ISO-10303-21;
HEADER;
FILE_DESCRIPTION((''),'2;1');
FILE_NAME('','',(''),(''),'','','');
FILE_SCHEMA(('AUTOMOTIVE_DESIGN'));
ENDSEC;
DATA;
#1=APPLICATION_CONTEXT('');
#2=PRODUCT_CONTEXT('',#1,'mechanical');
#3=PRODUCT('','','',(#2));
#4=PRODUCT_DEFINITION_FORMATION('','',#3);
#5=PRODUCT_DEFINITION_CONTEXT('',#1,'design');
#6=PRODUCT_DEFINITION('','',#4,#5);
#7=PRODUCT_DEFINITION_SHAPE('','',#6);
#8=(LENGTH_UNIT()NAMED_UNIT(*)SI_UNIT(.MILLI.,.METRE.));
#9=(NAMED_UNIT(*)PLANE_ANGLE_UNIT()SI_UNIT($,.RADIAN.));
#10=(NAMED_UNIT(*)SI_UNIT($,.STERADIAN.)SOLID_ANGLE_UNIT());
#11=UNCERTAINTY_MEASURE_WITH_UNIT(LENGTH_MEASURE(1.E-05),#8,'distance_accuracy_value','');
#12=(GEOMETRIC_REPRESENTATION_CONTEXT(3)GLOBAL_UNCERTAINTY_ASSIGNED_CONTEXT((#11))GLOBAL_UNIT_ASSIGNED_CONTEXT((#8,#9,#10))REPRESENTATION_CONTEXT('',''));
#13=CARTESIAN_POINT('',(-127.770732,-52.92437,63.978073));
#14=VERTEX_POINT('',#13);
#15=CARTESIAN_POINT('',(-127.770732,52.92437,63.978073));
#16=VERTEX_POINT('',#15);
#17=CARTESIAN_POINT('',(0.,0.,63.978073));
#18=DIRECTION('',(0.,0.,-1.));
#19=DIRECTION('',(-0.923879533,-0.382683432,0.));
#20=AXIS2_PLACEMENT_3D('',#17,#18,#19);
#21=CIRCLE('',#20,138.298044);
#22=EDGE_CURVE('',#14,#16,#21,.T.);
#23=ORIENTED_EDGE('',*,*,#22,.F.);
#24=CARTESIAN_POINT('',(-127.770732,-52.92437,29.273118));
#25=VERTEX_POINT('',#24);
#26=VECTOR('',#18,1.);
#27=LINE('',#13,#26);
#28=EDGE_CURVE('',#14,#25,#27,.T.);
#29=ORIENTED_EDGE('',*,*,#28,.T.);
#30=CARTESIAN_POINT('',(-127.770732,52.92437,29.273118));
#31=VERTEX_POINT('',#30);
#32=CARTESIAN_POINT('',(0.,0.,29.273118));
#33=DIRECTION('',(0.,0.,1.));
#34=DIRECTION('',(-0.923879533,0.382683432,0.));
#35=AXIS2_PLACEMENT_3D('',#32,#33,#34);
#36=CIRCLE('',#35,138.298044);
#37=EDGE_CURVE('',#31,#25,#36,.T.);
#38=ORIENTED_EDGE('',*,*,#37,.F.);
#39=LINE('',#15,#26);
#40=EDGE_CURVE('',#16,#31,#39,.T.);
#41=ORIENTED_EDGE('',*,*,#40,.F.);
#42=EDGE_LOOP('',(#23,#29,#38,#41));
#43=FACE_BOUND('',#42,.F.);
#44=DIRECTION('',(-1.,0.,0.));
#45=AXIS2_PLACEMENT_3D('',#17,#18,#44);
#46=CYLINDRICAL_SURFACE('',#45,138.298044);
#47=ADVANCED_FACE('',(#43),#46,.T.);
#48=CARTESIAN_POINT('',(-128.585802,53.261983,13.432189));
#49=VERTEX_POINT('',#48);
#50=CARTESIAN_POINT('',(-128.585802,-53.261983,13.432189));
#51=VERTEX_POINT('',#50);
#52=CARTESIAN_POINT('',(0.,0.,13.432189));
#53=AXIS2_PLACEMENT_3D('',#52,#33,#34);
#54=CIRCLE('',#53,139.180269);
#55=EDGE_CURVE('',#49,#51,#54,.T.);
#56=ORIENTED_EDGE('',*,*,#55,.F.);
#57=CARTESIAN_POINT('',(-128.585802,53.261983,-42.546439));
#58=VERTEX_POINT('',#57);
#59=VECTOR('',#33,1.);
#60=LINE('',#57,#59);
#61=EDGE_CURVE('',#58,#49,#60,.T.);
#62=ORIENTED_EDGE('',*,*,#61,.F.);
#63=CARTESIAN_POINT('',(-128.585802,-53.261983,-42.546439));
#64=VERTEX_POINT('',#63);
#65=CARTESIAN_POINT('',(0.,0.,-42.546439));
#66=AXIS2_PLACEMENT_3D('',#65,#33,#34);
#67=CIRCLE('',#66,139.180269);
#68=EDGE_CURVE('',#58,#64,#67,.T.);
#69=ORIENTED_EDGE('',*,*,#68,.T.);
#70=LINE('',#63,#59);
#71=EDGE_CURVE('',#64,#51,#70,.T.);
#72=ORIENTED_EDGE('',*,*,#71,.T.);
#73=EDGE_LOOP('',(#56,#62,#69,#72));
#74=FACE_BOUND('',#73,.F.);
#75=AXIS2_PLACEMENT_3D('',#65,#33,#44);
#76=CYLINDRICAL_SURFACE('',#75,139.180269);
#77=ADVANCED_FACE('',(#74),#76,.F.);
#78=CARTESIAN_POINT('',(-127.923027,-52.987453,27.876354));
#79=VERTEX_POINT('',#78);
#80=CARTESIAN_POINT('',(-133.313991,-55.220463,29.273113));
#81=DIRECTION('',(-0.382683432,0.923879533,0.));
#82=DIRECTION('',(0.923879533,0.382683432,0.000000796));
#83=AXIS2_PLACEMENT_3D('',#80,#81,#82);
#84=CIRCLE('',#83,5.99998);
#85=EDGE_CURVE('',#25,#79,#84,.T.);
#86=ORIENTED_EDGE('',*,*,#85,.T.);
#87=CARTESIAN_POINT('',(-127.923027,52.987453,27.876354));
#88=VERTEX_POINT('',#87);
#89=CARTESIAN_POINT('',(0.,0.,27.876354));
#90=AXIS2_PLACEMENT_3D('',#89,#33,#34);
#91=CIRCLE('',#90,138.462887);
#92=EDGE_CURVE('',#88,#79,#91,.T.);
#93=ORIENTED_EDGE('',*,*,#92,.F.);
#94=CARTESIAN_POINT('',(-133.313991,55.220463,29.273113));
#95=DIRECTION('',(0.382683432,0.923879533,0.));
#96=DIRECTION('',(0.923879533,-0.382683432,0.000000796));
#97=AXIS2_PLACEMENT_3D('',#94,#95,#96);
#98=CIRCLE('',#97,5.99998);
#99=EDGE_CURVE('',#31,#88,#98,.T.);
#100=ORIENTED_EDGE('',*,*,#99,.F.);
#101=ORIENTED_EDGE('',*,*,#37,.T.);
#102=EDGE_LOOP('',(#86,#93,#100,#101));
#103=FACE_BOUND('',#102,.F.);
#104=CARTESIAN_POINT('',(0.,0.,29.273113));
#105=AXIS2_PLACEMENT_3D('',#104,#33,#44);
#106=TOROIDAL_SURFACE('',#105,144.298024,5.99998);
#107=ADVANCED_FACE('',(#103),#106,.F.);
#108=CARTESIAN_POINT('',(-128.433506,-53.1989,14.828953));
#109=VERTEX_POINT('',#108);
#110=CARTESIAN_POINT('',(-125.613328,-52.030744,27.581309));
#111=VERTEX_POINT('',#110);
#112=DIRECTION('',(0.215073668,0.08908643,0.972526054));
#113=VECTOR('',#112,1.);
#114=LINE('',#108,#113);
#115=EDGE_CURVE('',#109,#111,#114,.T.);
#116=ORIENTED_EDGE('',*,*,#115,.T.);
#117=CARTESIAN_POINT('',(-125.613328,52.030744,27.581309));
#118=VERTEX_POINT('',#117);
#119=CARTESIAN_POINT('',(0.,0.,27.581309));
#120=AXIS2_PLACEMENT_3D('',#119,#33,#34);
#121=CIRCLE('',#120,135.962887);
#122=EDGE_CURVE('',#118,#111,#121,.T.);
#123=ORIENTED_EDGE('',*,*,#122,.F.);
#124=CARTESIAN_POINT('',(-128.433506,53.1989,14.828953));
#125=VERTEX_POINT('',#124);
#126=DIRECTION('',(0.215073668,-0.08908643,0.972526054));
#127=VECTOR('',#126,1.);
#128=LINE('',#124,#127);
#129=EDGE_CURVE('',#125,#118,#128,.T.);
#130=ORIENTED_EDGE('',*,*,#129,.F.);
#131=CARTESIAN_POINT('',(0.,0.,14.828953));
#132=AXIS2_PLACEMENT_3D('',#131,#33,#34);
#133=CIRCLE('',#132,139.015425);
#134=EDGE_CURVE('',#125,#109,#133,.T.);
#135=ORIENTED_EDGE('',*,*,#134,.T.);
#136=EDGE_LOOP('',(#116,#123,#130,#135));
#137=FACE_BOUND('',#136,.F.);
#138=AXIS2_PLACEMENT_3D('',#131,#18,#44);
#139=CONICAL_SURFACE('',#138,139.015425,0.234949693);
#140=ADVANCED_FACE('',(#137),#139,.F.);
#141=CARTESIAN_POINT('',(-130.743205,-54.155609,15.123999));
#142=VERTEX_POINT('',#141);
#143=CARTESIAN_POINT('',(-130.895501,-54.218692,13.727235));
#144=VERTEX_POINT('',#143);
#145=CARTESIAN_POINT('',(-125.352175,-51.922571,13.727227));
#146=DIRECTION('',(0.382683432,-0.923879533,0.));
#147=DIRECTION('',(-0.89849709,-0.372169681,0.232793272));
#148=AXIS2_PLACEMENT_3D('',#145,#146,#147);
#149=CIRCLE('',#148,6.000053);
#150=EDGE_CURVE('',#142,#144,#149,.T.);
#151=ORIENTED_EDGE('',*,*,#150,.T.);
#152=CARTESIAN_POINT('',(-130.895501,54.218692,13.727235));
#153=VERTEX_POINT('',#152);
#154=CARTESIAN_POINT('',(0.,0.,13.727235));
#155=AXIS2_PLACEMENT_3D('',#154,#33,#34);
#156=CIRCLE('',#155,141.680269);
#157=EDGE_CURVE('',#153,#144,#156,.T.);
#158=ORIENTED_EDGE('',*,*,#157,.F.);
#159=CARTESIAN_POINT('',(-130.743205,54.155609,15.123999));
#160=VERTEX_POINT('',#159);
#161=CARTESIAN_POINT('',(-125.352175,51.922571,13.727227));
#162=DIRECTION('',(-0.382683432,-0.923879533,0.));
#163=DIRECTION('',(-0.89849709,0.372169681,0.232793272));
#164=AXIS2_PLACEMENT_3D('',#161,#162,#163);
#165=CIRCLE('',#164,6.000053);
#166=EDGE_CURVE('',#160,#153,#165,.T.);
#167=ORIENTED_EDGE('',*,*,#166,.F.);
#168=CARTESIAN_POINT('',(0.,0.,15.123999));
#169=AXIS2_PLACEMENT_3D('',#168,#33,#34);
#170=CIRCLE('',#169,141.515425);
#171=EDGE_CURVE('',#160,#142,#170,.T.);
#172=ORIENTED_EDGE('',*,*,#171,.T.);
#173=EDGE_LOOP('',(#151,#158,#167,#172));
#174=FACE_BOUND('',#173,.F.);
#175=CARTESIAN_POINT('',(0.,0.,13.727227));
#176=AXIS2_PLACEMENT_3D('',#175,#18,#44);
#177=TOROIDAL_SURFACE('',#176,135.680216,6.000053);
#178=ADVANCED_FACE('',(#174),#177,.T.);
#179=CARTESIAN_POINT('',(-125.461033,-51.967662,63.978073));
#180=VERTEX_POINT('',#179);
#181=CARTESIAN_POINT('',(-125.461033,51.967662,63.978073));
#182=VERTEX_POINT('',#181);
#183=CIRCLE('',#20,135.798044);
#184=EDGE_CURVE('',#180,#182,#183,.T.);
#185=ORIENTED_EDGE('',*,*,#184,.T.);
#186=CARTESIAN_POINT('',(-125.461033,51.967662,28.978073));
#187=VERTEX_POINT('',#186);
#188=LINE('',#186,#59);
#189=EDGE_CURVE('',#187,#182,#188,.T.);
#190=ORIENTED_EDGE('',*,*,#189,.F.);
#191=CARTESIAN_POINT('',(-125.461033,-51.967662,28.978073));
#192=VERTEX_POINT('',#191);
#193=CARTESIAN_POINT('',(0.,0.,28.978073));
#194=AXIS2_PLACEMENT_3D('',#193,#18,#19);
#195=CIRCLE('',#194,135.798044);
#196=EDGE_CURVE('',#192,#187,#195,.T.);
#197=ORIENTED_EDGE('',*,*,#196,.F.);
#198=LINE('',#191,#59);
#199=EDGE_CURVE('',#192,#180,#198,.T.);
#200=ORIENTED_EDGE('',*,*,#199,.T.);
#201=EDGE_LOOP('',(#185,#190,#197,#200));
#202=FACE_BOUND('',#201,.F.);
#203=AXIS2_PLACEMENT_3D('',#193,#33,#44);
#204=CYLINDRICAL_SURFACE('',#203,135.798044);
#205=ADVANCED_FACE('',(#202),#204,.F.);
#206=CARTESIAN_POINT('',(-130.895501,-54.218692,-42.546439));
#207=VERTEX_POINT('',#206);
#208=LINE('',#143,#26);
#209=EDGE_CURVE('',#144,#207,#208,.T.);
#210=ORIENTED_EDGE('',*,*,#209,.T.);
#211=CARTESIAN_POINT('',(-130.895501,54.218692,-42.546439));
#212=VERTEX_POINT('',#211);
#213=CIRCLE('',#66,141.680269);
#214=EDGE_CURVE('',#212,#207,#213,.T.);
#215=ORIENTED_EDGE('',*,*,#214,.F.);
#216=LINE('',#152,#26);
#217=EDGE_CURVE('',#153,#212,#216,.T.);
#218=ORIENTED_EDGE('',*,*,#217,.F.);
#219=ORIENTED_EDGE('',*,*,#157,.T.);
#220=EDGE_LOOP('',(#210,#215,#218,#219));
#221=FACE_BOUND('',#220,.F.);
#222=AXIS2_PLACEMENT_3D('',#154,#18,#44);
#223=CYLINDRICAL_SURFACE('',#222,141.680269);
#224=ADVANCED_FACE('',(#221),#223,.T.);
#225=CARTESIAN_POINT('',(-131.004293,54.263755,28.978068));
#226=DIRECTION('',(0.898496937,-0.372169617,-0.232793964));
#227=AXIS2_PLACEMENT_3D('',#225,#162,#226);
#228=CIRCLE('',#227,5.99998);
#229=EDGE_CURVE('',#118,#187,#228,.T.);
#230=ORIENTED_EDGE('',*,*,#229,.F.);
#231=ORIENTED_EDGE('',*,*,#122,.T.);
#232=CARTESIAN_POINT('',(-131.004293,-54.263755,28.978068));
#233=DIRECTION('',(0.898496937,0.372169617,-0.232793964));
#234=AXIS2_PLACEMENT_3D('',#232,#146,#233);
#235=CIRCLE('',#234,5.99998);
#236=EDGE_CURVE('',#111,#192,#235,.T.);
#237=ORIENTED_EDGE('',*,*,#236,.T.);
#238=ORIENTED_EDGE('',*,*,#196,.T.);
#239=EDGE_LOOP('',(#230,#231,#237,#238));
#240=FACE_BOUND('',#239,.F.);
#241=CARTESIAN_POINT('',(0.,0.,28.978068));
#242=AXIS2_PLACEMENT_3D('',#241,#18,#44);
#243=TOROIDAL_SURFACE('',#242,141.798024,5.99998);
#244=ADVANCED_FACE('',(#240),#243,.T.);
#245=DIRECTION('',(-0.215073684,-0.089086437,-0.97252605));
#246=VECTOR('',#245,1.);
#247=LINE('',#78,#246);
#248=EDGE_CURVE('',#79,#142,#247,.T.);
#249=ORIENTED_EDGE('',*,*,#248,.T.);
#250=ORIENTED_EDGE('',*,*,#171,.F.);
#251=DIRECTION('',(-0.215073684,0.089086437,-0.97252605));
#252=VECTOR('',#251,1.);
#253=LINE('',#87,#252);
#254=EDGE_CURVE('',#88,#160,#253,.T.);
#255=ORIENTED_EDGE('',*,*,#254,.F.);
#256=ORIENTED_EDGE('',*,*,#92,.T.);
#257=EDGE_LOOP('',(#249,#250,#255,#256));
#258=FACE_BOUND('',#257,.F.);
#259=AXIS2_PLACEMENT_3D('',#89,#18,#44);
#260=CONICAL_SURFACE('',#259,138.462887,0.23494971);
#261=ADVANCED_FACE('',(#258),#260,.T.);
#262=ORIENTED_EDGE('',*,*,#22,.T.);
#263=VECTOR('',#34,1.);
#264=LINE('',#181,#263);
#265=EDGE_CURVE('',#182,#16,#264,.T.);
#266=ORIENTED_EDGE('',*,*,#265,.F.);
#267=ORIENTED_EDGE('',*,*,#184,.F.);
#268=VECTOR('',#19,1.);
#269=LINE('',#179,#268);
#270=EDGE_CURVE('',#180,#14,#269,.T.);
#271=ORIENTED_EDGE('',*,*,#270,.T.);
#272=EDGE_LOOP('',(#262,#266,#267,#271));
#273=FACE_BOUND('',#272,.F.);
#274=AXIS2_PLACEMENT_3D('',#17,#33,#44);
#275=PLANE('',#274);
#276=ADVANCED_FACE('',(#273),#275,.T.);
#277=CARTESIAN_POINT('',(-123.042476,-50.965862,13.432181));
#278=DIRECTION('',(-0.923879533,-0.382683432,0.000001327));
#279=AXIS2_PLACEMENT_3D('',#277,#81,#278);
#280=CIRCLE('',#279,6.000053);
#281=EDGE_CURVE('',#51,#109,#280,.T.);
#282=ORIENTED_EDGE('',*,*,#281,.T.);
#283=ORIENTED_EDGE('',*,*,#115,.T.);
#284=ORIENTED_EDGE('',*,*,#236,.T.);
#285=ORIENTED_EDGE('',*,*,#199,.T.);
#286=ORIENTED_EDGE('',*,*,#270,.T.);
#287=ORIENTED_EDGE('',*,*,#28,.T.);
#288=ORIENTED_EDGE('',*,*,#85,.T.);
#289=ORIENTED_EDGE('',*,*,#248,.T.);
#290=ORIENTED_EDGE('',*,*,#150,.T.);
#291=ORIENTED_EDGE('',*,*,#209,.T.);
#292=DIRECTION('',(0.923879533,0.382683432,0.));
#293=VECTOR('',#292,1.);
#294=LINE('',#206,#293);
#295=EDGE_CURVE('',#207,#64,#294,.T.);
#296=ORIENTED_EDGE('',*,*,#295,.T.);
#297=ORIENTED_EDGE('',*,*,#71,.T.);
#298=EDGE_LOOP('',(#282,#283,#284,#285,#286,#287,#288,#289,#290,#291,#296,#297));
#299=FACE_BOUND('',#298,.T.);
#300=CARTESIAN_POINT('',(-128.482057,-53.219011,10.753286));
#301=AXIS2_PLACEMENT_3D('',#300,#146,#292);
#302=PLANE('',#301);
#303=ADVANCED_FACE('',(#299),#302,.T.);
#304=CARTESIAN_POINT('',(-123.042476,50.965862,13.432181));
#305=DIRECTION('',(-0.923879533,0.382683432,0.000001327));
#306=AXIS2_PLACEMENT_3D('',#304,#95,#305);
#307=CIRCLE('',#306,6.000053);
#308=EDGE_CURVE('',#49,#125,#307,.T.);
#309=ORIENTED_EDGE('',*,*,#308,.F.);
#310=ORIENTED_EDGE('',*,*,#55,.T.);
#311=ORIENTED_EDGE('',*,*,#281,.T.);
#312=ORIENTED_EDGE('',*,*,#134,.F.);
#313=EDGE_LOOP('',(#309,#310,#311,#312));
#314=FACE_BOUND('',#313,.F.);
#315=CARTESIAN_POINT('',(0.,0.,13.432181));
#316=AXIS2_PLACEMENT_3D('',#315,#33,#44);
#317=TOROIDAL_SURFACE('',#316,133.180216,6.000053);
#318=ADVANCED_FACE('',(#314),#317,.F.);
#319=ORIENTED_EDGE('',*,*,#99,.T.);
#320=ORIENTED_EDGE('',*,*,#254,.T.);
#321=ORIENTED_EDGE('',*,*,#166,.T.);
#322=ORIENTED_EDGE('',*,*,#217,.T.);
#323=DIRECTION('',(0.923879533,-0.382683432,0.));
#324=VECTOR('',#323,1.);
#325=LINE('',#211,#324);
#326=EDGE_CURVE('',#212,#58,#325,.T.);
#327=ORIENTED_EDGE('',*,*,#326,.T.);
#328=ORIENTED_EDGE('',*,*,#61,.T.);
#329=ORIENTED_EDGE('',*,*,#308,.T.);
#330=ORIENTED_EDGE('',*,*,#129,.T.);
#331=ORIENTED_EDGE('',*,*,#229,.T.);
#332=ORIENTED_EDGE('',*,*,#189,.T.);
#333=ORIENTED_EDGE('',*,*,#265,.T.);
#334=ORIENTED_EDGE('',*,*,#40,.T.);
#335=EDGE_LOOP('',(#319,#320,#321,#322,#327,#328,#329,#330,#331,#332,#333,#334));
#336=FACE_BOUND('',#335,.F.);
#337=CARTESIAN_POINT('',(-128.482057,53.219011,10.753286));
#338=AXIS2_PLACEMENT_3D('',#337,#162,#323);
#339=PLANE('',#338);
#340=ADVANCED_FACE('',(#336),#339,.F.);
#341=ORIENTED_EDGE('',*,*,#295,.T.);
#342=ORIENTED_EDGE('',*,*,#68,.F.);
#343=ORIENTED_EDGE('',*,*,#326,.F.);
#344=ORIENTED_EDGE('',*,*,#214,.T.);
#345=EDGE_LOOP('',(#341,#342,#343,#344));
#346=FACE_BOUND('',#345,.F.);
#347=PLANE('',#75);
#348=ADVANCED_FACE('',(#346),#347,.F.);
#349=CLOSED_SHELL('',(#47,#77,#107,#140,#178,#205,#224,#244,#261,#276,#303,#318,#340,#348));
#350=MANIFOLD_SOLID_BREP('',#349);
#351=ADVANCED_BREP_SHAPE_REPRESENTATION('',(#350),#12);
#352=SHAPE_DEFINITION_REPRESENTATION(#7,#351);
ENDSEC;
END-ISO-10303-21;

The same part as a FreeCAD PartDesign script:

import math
import FreeCAD as App
import Part
import Sketcher
from FreeCAD import Vector
Q = App.Units.Quantity

doc = App.newDocument("Part")
params = doc.addObject("Spreadsheet::Sheet", "Params")
for row, (alias, value) in enumerate([
    ("sketch1_height", "35 mm"),
    ("sketch1_width", "2.5 mm"),
    ("revolution_angle", "22.5 deg"),
    ("sketch2_height", "35 mm"),
    ("sketch2_width", "2.5 mm"),
    ("revolution2_angle", "22.5 deg"),
], start=1):
    params.set(f"A{row}", alias)
    params.set(f"B{row}", "=" + value)
    params.setAlias(f"B{row}", alias)

body = doc.addObject("PartDesign::Body", "Body")

# Sketch on XZ plane
sketch1 = body.newObject("Sketcher::SketchObject", "Sketch")
sketch1.AttachmentSupport = (doc.getObject("XZ_Plane"), [""])
sketch1.MapMode = "FlatFace"
sketch1.addGeometry([
    Part.LineSegment(Vector(-138.3, 64, 0), Vector(-138.3, 29.3, 0)),  # 0
    Part.ArcOfCircle(Part.Circle(Vector(-144.3, 29.3, 0), Vector(0, 0, 1), 6), math.radians(-13.46), math.radians(0)),  # 1
    Part.LineSegment(Vector(-138.5, 27.9, 0), Vector(-141.5, 15.1, 0)),  # 2
    Part.ArcOfCircle(Part.Circle(Vector(-135.7, 13.7, 0), Vector(0, 0, 1), 6), math.radians(166.54), math.radians(180)),  # 3
    Part.LineSegment(Vector(-141.7, 13.7, 0), Vector(-141.7, -42.5, 0)),  # 4
    Part.LineSegment(Vector(-141.7, -42.5, 0), Vector(-139.2, -42.5, 0)),  # 5
    Part.LineSegment(Vector(-139.2, -42.5, 0), Vector(-139.2, 13.4, 0)),  # 6
    Part.ArcOfCircle(Part.Circle(Vector(-133.2, 13.4, 0), Vector(0, 0, 1), 6), math.radians(166.54), math.radians(180)),  # 7
    Part.LineSegment(Vector(-139, 14.8, 0), Vector(-136, 27.6, 0)),  # 8
    Part.ArcOfCircle(Part.Circle(Vector(-141.8, 29, 0), Vector(0, 0, 1), 6), math.radians(-13.46), math.radians(0)),  # 9
    Part.LineSegment(Vector(-135.8, 29, 0), Vector(-135.8, 64, 0)),  # 10
    Part.LineSegment(Vector(-135.8, 64, 0), Vector(-138.3, 64, 0)),  # 11
], False)
sketch1.addConstraint([
    Sketcher.Constraint("Tangent", 0, 2, 1, 2),
    Sketcher.Constraint("Tangent", 1, 1, 2, 1),
    Sketcher.Constraint("Tangent", 2, 2, 3, 1),
    Sketcher.Constraint("Tangent", 3, 2, 4, 1),
    Sketcher.Constraint("Coincident", 4, 2, 5, 1),
    Sketcher.Constraint("Coincident", 5, 2, 6, 1),
    Sketcher.Constraint("Tangent", 6, 2, 7, 2),
    Sketcher.Constraint("Tangent", 7, 1, 8, 1),
    Sketcher.Constraint("Tangent", 8, 2, 9, 1),
    Sketcher.Constraint("Tangent", 9, 2, 10, 1),
    Sketcher.Constraint("Coincident", 10, 2, 11, 1),
    Sketcher.Constraint("Coincident", 11, 2, 0, 1),
    Sketcher.Constraint("Vertical", 0),
    Sketcher.Constraint("Vertical", 4),
    Sketcher.Constraint("Horizontal", 5),
    Sketcher.Constraint("Vertical", 6),
    Sketcher.Constraint("Vertical", 10),
    Sketcher.Constraint("Horizontal", 11),
    Sketcher.Constraint("Equal", 3, 7),
    Sketcher.Constraint("Equal", 1, 9),
    Sketcher.Constraint("Parallel", 2, 8),
    Sketcher.Constraint("Equal", 5, 11),
    Sketcher.Constraint("DistanceY", 10, 1, 10, 2, Q("35 mm")),
    Sketcher.Constraint("DistanceX", 5, 1, 5, 2, Q("2.5 mm")),
    Sketcher.Constraint("Radius", 1, Q("5.99998 mm")),
    Sketcher.Constraint("DistanceY", -1, 1, 2, 2, Q("15.123999 mm")),
    Sketcher.Constraint("Radius", 3, Q("6.000053 mm")),
    Sketcher.Constraint("DistanceX", 9, 3, 2, 2, Q("0.282599 mm")),
    Sketcher.Constraint("Distance", 2, Q("13.11261 mm")),
    Sketcher.Constraint("DistanceY", 0, 2, 0, 1, Q("34.704955 mm")),
    Sketcher.Constraint("DistanceY", 4, 2, 4, 1, Q("56.273674 mm")),
    Sketcher.Constraint("DistanceX", 3, 2, -1, 1, Q("141.680269 mm")),
])
sketch1.setExpression("Constraints[22]", "Params.sketch1_height")
sketch1.setExpression("Constraints[23]", "Params.sketch1_width")
revolution = body.newObject("PartDesign::Revolution", "Revolution")
revolution.Profile = sketch1
revolution.ReferenceAxis = (sketch1, ["V_Axis"])
revolution.setExpression("Angle", "Params.revolution_angle")
revolution.Reversed = True

# Sketch on XZ plane
sketch2 = body.newObject("Sketcher::SketchObject", "Sketch001")
sketch2.AttachmentSupport = (doc.getObject("XZ_Plane"), [""])
sketch2.MapMode = "FlatFace"
sketch2.addGeometry([
    Part.LineSegment(Vector(-138.3, 64, 0), Vector(-138.3, 29.3, 0)),  # 0
    Part.ArcOfCircle(Part.Circle(Vector(-144.3, 29.3, 0), Vector(0, 0, 1), 6), math.radians(-13.46), math.radians(0)),  # 1
    Part.LineSegment(Vector(-138.5, 27.9, 0), Vector(-141.5, 15.1, 0)),  # 2
    Part.ArcOfCircle(Part.Circle(Vector(-135.7, 13.7, 0), Vector(0, 0, 1), 6), math.radians(166.54), math.radians(180)),  # 3
    Part.LineSegment(Vector(-141.7, 13.7, 0), Vector(-141.7, -42.5, 0)),  # 4
    Part.LineSegment(Vector(-141.7, -42.5, 0), Vector(-139.2, -42.5, 0)),  # 5
    Part.LineSegment(Vector(-139.2, -42.5, 0), Vector(-139.2, 13.4, 0)),  # 6
    Part.ArcOfCircle(Part.Circle(Vector(-133.2, 13.4, 0), Vector(0, 0, 1), 6), math.radians(166.54), math.radians(180)),  # 7
    Part.LineSegment(Vector(-139, 14.8, 0), Vector(-136, 27.6, 0)),  # 8
    Part.ArcOfCircle(Part.Circle(Vector(-141.8, 29, 0), Vector(0, 0, 1), 6), math.radians(-13.46), math.radians(0)),  # 9
    Part.LineSegment(Vector(-135.8, 29, 0), Vector(-135.8, 64, 0)),  # 10
    Part.LineSegment(Vector(-135.8, 64, 0), Vector(-138.3, 64, 0)),  # 11
], False)
sketch2.addConstraint([
    Sketcher.Constraint("Tangent", 0, 2, 1, 2),
    Sketcher.Constraint("Tangent", 1, 1, 2, 1),
    Sketcher.Constraint("Tangent", 2, 2, 3, 1),
    Sketcher.Constraint("Tangent", 3, 2, 4, 1),
    Sketcher.Constraint("Coincident", 4, 2, 5, 1),
    Sketcher.Constraint("Coincident", 5, 2, 6, 1),
    Sketcher.Constraint("Tangent", 6, 2, 7, 2),
    Sketcher.Constraint("Tangent", 7, 1, 8, 1),
    Sketcher.Constraint("Tangent", 8, 2, 9, 1),
    Sketcher.Constraint("Tangent", 9, 2, 10, 1),
    Sketcher.Constraint("Coincident", 10, 2, 11, 1),
    Sketcher.Constraint("Coincident", 11, 2, 0, 1),
    Sketcher.Constraint("Vertical", 0),
    Sketcher.Constraint("Vertical", 4),
    Sketcher.Constraint("Horizontal", 5),
    Sketcher.Constraint("Vertical", 6),
    Sketcher.Constraint("Vertical", 10),
    Sketcher.Constraint("Horizontal", 11),
    Sketcher.Constraint("Equal", 3, 7),
    Sketcher.Constraint("Equal", 1, 9),
    Sketcher.Constraint("Parallel", 2, 8),
    Sketcher.Constraint("Equal", 5, 11),
    Sketcher.Constraint("DistanceY", 10, 1, 10, 2, Q("35 mm")),
    Sketcher.Constraint("DistanceX", 5, 1, 5, 2, Q("2.5 mm")),
    Sketcher.Constraint("Radius", 1, Q("5.99998 mm")),
    Sketcher.Constraint("DistanceY", -1, 1, 2, 2, Q("15.123999 mm")),
    Sketcher.Constraint("Radius", 3, Q("6.000053 mm")),
    Sketcher.Constraint("DistanceX", 9, 3, 2, 2, Q("0.282599 mm")),
    Sketcher.Constraint("Distance", 2, Q("13.11261 mm")),
    Sketcher.Constraint("DistanceY", 0, 2, 0, 1, Q("34.704955 mm")),
    Sketcher.Constraint("DistanceY", 4, 2, 4, 1, Q("56.273674 mm")),
    Sketcher.Constraint("DistanceX", 3, 2, -1, 1, Q("141.680269 mm")),
])
sketch2.setExpression("Constraints[22]", "Params.sketch2_height")
sketch2.setExpression("Constraints[23]", "Params.sketch2_width")
revolution2 = body.newObject("PartDesign::Revolution", "Revolution001")
revolution2.Profile = sketch2
revolution2.ReferenceAxis = (sketch2, ["V_Axis"])
revolution2.setExpression("Angle", "Params.revolution2_angle")

doc.recompute()
